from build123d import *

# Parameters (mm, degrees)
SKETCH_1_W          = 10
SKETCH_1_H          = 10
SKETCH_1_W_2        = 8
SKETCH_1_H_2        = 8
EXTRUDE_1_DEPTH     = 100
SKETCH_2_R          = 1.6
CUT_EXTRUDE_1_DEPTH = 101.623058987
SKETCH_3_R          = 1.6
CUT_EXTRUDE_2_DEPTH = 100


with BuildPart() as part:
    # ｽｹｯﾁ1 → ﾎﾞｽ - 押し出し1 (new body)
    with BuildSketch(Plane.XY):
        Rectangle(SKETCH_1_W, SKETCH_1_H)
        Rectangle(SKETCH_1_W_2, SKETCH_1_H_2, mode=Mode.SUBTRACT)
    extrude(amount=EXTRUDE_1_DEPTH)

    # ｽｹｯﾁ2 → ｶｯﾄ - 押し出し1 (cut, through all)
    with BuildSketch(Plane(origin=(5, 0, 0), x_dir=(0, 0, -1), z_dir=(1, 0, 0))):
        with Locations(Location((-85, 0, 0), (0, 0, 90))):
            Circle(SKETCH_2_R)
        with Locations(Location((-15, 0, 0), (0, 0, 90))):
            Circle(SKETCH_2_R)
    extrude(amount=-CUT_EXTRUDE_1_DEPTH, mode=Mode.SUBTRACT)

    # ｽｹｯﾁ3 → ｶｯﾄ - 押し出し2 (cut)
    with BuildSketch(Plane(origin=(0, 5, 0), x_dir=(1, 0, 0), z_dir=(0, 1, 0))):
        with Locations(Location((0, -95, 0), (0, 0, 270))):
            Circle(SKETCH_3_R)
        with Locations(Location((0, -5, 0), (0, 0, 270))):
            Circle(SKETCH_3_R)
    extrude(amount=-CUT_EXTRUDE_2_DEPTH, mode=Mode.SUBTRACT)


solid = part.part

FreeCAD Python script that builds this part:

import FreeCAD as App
import Part
import Sketcher
from FreeCAD import Vector
Q = App.Units.Quantity

doc = App.newDocument("Part")
body = doc.addObject("PartDesign::Body", "Body")

# Sketch on XY plane
sketch1 = body.newObject("Sketcher::SketchObject", "Sketch")
sketch1.AttachmentSupport = (doc.getObject("XY_Plane"), [""])
sketch1.MapMode = "FlatFace"
sketch1.addGeometry(Part.LineSegment(Vector(-5, 5, 0), Vector(-5, -5, 0)), False)
sketch1.addGeometry(Part.LineSegment(Vector(-5, -5, 0), Vector(5, -5, 0)), False)
sketch1.addGeometry(Part.LineSegment(Vector(5, -5, 0), Vector(5, 5, 0)), False)
sketch1.addGeometry(Part.LineSegment(Vector(5, 5, 0), Vector(-5, 5, 0)), False)
sketch1.addGeometry(Part.LineSegment(Vector(4, -4, 0), Vector(-4, -4, 0)), False)
sketch1.addGeometry(Part.LineSegment(Vector(-4, -4, 0), Vector(-4, 4, 0)), False)
sketch1.addGeometry(Part.LineSegment(Vector(-4, 4, 0), Vector(4, 4, 0)), False)
sketch1.addGeometry(Part.LineSegment(Vector(4, 4, 0), Vector(4, -4, 0)), False)
sketch1.addConstraint(Sketcher.Constraint("Coincident", 0, 2, 1, 1))
sketch1.addConstraint(Sketcher.Constraint("Coincident", 1, 2, 2, 1))
sketch1.addConstraint(Sketcher.Constraint("Coincident", 2, 2, 3, 1))
sketch1.addConstraint(Sketcher.Constraint("Coincident", 3, 2, 0, 1))
sketch1.addConstraint(Sketcher.Constraint("Coincident", 4, 2, 5, 1))
sketch1.addConstraint(Sketcher.Constraint("Coincident", 5, 2, 6, 1))
sketch1.addConstraint(Sketcher.Constraint("Coincident", 6, 2, 7, 1))
sketch1.addConstraint(Sketcher.Constraint("Coincident", 7, 2, 4, 1))
sketch1.addConstraint(Sketcher.Constraint("Vertical", 0))
sketch1.addConstraint(Sketcher.Constraint("Horizontal", 1))
sketch1.addConstraint(Sketcher.Constraint("Vertical", 2))
sketch1.addConstraint(Sketcher.Constraint("Horizontal", 3))
sketch1.addConstraint(Sketcher.Constraint("Horizontal", 4))
sketch1.addConstraint(Sketcher.Constraint("Vertical", 5))
sketch1.addConstraint(Sketcher.Constraint("Horizontal", 6))
sketch1.addConstraint(Sketcher.Constraint("Vertical", 7))
sketch1.addConstraint(Sketcher.Constraint("Symmetric", 0, 2, 2, 2, -1, 1))
sketch1.addConstraint(Sketcher.Constraint("Symmetric", 4, 2, 6, 2, -1, 1))
sketch1.addConstraint(Sketcher.Constraint("Equal", 3, 0))
sketch1.addConstraint(Sketcher.Constraint("Equal", 6, 5))
sketch1.addConstraint(Sketcher.Constraint("DistanceX", 1, 1, 1, 2, Q("10 mm")))
sketch1.addConstraint(Sketcher.Constraint("DistanceX", 4, 2, 4, 1, Q("8 mm")))
pad1 = body.newObject("PartDesign::Pad", "Pad")
pad1.Profile = sketch1
pad1.Length = 100

# Sketch on YZ plane
sketch2 = body.newObject("Sketcher::SketchObject", "Sketch001")
sketch2.AttachmentSupport = (doc.getObject("YZ_Plane"), [""])
sketch2.MapMode = "FlatFace"
sketch2.AttachmentOffset = App.Placement(Vector(0, 0, 5), App.Rotation())
sketch2.addGeometry(Part.Circle(Vector(0, 85, 0), Vector(0, 0, 1), 1.6), False)
sketch2.addGeometry(Part.Circle(Vector(0, 15, 0), Vector(0, 0, 1), 1.6), False)
sketch2.addConstraint(Sketcher.Constraint("Equal", 0, 1))
sketch2.addConstraint(Sketcher.Constraint("PointOnObject", 0, 3, -2))
sketch2.addConstraint(Sketcher.Constraint("PointOnObject", 1, 3, -2))
sketch2.addConstraint(Sketcher.Constraint("Diameter", 0, Q("3.2 mm")))
sketch2.addConstraint(Sketcher.Constraint("DistanceY", -1, 1, 0, 3, Q("85 mm")))
sketch2.addConstraint(Sketcher.Constraint("DistanceY", -1, 1, 1, 3, Q("15 mm")))
pocket1 = body.newObject("PartDesign::Pocket", "Pocket")
pocket1.Profile = sketch2
pocket1.Type = "ThroughAll"

# Sketch on XZ plane
sketch3 = body.newObject("Sketcher::SketchObject", "Sketch002")
sketch3.AttachmentSupport = (doc.getObject("XZ_Plane"), [""])
sketch3.MapMode = "FlatFace"
sketch3.AttachmentOffset = App.Placement(Vector(0, 0, -5), App.Rotation())
sketch3.addGeometry(Part.Circle(Vector(0, 95, 0), Vector(0, 0, 1), 1.6), False)
sketch3.addGeometry(Part.Circle(Vector(0, 5, 0), Vector(0, 0, 1), 1.6), False)
sketch3.addConstraint(Sketcher.Constraint("Equal", 0, 1))
sketch3.addConstraint(Sketcher.Constraint("PointOnObject", 0, 3, -2))
sketch3.addConstraint(Sketcher.Constraint("PointOnObject", 1, 3, -2))
sketch3.addConstraint(Sketcher.Constraint("Diameter", 0, Q("3.2 mm")))
sketch3.addConstraint(Sketcher.Constraint("DistanceY", -1, 1, 0, 3, Q("95 mm")))
sketch3.addConstraint(Sketcher.Constraint("DistanceY", -1, 1, 1, 3, Q("5 mm")))
pocket2 = body.newObject("PartDesign::Pocket", "Pocket001")
pocket2.Profile = sketch3
pocket2.Length = 100
pocket2.Reversed = True

doc.recompute()
